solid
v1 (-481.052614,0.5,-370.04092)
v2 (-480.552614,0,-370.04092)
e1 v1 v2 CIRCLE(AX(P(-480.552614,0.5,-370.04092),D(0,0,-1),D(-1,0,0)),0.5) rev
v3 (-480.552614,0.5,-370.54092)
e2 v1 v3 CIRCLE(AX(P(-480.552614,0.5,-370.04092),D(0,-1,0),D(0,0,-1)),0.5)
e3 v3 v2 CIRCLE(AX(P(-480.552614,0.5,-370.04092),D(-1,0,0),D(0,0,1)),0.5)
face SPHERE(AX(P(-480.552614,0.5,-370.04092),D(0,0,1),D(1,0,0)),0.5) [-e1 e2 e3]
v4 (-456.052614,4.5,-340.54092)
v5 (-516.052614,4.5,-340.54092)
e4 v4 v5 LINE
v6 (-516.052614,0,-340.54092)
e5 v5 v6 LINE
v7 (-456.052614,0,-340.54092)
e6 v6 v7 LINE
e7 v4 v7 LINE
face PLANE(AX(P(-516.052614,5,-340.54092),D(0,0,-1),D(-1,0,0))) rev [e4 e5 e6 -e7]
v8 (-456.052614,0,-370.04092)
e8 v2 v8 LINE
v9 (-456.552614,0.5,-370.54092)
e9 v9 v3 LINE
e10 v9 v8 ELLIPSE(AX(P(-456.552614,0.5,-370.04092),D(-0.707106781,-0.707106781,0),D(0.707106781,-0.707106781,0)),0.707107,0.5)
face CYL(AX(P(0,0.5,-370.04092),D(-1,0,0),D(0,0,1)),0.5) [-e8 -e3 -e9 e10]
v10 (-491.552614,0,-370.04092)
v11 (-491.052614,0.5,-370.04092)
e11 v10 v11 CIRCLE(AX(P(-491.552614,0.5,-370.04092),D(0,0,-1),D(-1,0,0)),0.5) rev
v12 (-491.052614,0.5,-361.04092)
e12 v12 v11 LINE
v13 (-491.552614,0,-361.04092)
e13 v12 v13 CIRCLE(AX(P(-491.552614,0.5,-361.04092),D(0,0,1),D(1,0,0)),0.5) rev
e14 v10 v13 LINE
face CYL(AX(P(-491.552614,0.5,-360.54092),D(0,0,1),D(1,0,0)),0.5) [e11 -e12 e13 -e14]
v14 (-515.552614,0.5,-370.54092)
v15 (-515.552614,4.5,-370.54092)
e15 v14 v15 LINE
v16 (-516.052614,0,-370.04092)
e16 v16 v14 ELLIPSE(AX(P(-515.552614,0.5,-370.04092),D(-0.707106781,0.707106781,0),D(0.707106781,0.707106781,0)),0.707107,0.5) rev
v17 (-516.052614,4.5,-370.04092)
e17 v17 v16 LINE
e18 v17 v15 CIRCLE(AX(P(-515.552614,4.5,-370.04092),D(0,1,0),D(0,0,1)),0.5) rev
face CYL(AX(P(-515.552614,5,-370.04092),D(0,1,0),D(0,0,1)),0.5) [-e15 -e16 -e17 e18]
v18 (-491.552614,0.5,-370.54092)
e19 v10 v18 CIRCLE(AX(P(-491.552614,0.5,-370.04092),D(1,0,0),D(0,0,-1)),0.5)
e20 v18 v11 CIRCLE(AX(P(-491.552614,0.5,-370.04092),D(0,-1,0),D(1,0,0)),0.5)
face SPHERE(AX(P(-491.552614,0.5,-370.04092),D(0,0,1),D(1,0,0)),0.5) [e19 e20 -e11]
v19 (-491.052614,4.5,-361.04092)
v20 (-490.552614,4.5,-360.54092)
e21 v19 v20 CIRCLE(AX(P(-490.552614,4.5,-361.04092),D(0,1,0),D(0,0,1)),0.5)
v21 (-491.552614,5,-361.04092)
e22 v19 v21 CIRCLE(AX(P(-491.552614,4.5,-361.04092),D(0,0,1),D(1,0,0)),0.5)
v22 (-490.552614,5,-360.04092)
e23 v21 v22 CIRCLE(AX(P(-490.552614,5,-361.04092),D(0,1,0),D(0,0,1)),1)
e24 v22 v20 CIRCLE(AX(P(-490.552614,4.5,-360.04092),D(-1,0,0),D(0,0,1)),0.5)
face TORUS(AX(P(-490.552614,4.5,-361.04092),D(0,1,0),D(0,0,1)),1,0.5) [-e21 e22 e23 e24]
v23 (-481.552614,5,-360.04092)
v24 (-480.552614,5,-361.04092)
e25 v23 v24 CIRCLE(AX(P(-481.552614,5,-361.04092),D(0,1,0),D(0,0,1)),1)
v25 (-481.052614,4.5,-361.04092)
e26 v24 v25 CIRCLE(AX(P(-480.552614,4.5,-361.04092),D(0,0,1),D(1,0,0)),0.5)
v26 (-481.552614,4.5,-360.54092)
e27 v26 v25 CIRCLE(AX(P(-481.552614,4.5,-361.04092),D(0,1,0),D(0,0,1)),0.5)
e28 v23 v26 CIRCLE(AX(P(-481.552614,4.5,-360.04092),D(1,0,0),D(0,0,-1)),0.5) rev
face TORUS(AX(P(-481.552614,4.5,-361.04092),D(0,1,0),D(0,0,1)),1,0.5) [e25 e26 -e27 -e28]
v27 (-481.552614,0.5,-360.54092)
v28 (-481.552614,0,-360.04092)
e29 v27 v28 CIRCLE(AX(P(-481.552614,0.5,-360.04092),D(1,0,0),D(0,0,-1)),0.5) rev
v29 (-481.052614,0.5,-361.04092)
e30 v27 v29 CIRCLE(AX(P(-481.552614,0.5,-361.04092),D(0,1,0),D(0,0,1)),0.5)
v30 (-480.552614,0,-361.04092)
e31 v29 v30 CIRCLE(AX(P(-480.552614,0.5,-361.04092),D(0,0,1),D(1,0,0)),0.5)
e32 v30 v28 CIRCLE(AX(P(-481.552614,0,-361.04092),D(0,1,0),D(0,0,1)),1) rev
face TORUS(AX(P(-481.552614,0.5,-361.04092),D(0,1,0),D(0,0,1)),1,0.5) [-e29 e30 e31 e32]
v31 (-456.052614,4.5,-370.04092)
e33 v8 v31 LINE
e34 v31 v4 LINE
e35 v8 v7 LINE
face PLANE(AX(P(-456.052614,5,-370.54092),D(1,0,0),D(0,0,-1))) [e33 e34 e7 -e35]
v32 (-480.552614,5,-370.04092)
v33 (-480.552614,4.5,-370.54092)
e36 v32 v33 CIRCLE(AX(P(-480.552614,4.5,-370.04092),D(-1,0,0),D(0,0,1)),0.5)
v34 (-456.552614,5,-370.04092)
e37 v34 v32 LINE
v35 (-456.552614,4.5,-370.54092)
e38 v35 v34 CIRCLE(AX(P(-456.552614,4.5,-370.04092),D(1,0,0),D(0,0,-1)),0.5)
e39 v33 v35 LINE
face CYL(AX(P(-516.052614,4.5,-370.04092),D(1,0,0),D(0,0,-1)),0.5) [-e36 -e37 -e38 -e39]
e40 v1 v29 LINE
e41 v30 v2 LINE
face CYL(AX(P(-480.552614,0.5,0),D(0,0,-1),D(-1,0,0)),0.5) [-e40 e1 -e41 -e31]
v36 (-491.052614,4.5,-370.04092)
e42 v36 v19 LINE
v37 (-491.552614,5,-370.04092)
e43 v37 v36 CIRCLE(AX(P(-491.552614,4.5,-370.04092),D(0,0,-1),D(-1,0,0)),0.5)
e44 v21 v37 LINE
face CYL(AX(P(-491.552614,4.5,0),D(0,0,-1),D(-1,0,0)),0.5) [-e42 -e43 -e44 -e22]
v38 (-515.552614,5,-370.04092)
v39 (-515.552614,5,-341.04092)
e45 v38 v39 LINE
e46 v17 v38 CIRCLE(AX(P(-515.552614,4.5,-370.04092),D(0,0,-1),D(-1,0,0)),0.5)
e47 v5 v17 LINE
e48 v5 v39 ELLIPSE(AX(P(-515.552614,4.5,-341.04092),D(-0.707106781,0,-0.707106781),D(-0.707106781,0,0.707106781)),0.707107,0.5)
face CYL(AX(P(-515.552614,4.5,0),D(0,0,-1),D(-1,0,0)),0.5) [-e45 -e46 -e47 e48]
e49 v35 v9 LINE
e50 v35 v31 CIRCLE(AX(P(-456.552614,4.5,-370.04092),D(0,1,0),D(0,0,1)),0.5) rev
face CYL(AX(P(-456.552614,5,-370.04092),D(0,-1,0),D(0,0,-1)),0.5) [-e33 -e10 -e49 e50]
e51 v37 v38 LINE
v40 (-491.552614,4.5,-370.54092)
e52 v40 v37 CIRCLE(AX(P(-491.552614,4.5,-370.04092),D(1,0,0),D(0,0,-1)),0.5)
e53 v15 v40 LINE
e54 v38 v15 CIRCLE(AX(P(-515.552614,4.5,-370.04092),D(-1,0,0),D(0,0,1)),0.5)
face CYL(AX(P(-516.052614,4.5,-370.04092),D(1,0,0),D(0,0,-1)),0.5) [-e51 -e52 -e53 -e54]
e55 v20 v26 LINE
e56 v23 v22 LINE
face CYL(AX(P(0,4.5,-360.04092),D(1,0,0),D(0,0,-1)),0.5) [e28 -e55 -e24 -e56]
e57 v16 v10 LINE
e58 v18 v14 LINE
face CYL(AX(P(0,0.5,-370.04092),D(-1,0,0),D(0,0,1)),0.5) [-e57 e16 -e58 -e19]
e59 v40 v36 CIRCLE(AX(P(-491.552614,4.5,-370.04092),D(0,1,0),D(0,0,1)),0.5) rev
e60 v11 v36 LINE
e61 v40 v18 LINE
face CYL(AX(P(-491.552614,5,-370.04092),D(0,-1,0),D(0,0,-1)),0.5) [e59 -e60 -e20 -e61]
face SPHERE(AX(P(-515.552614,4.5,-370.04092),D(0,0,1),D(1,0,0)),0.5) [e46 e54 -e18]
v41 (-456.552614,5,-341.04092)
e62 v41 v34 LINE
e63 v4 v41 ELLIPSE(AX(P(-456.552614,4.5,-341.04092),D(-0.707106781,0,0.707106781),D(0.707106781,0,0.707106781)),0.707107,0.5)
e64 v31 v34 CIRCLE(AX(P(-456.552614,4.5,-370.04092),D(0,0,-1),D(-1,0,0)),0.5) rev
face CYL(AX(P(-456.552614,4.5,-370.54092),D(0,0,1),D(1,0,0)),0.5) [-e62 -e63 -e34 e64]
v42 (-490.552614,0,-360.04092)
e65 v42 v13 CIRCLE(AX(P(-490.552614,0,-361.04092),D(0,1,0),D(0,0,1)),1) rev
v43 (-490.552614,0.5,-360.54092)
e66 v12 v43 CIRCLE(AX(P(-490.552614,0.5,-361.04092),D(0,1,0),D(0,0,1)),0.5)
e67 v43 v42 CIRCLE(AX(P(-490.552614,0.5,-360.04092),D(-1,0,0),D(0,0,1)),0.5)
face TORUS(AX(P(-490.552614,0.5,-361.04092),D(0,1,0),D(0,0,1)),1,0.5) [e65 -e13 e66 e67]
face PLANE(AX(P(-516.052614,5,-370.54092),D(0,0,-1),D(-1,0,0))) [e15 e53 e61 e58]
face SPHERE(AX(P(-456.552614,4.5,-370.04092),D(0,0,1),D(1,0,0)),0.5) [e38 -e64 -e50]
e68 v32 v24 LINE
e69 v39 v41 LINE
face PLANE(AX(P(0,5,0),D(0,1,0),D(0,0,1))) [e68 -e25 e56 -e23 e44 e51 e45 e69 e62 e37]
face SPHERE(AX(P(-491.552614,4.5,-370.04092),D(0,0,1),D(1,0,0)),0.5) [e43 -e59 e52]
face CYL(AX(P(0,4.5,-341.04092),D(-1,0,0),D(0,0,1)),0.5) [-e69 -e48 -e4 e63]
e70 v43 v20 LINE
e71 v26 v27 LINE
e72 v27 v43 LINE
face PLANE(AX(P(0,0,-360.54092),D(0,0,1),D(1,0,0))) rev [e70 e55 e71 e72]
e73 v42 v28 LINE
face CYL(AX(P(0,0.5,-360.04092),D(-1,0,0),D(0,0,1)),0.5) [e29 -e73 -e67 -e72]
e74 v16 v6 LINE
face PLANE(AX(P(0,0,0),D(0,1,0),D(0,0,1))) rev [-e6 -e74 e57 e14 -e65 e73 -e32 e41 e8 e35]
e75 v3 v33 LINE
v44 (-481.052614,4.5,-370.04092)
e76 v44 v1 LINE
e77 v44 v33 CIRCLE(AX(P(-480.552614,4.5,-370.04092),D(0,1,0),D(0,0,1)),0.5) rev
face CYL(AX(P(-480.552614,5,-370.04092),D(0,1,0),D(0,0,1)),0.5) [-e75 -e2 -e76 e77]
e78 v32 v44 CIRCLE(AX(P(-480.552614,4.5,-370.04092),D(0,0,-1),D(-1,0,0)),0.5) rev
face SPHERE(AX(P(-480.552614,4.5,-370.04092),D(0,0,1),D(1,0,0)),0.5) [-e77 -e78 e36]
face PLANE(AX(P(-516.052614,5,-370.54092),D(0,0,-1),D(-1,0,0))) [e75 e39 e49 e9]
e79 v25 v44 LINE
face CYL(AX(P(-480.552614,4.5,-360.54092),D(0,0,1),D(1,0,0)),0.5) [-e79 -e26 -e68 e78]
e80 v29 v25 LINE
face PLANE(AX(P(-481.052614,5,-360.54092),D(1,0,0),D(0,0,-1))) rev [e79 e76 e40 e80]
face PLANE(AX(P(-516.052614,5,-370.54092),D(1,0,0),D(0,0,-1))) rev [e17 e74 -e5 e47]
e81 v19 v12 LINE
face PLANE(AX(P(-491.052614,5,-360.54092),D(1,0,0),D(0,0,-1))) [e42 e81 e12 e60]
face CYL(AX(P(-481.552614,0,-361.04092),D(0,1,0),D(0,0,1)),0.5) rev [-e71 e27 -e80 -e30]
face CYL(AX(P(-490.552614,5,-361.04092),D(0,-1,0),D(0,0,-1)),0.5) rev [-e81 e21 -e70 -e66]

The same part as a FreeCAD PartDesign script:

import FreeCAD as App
import Part
import Sketcher

V = App.Vector


def edges_at(feature, points):
    """Names of the edges that pass closest to the given points."""
    edges = feature.Shape.Edges
    near = lambda p: min(range(len(edges)), key=lambda i: edges[i].distToShape(Part.Vertex(*p))[0])
    return sorted({f"Edge{near(p) + 1}" for p in points})

doc = App.newDocument("Part")
body = doc.addObject("PartDesign::Body", "Body")

sketch1 = body.newObject("Sketcher::SketchObject", "Sketch")
sketch1.AttachmentSupport = (doc.getObject("XZ_Plane"), [""])
sketch1.MapMode = "FlatFace"
sketch1.addGeometry([
    Part.LineSegment(V(-516, -371, 0), V(-516, -341, 0)),
    Part.LineSegment(V(-516, -341, 0), V(-456, -341, 0)),
    Part.LineSegment(V(-456, -341, 0), V(-456, -371, 0)),
    Part.LineSegment(V(-456, -371, 0), V(-516, -371, 0)),
], False)
sketch1.addConstraint([
    Sketcher.Constraint("Coincident", 0, 2, 1, 1),
    Sketcher.Constraint("Coincident", 1, 2, 2, 1),
    Sketcher.Constraint("Coincident", 2, 2, 3, 1),
    Sketcher.Constraint("Coincident", 3, 2, 0, 1),
    Sketcher.Constraint("Vertical", 0),
    Sketcher.Constraint("Horizontal", 1),
    Sketcher.Constraint("Vertical", 2),
    Sketcher.Constraint("Horizontal", 3),
    Sketcher.Constraint("DistanceX", 1, 1, 1, 2, 60.0),
    Sketcher.Constraint("DistanceY", 0, 1, 0, 2, 30.0),
    Sketcher.Constraint("DistanceY", 0, 2, -1, 1, 340.54092),
    Sketcher.Constraint("DistanceX", 0, 2, -1, 1, 516.052614),
])
pad1 = body.newObject("PartDesign::Pad", "Pad")
pad1.Profile = sketch1
pad1.Length = 5
pad1.Reversed = True

sketch2 = body.newObject("Sketcher::SketchObject", "Sketch001")
sketch2.AttachmentSupport = (doc.getObject("XY_Plane"), [""])
sketch2.MapMode = "FlatFace"
sketch2.AttachmentOffset = App.Placement(V(0, 0, -370.54092), App.Rotation())
sketch2.addGeometry([
    Part.LineSegment(V(-481, 5, 0), V(-481, 0, 0)),
    Part.LineSegment(V(-481, 0, 0), V(-491, 0, 0)),
    Part.LineSegment(V(-491, 0, 0), V(-491, 5, 0)),
    Part.LineSegment(V(-491, 5, 0), V(-481, 5, 0)),
], False)
sketch2.addConstraint([
    Sketcher.Constraint("Coincident", 0, 2, 1, 1),
    Sketcher.Constraint("Coincident", 1, 2, 2, 1),
    Sketcher.Constraint("Coincident", 2, 2, 3, 1),
    Sketcher.Constraint("Coincident", 3, 2, 0, 1),
    Sketcher.Constraint("Vertical", 0),
    Sketcher.Constraint("Horizontal", 1),
    Sketcher.Constraint("Vertical", 2),
    Sketcher.Constraint("Horizontal", 3),
    Sketcher.Constraint("PointOnObject", 0, 2, -1),
    Sketcher.Constraint("DistanceX", 1, 2, 1, 1, 10.0),
    Sketcher.Constraint("DistanceY", 0, 2, 0, 1, 5.0),
    Sketcher.Constraint("DistanceX", 0, 2, -1, 1, 481.052614),
])
pocket1 = body.newObject("PartDesign::Pocket", "Pocket")
pocket1.Profile = sketch2
pocket1.Length = 10
pocket1.Reversed = True
doc.recompute()

fillet = body.newObject("PartDesign::Fillet", "Fillet")
fillet.Base = (pocket1, edges_at(pocket1, [
    (-456.053, 5, -355.541),
    (-503.553, 5, -370.541),
    (-468.553, 0, -370.541),
    (-468.553, 5, -370.541),
    (-481.053, 5, -365.541),
    (-491.053, 2.5, -370.541),
    (-491.053, 5, -365.541),
    (-486.053, 0, -360.541),
    (-491.053, 0, -365.541),
    (-481.053, 2.5, -360.541),
    (-481.053, 0, -365.541),
    (-486.053, 5, -360.541),
    (-491.053, 2.5, -360.541),
    (-481.053, 2.5, -370.541),
    (-516.053, 5, -355.541),
    (-503.553, 0, -370.541),
    (-486.053, 5, -340.541),
    (-516.053, 2.5, -370.541),
    (-456.053, 2.5, -370.541),
]))
fillet.Radius = 0.5

doc.recompute()
